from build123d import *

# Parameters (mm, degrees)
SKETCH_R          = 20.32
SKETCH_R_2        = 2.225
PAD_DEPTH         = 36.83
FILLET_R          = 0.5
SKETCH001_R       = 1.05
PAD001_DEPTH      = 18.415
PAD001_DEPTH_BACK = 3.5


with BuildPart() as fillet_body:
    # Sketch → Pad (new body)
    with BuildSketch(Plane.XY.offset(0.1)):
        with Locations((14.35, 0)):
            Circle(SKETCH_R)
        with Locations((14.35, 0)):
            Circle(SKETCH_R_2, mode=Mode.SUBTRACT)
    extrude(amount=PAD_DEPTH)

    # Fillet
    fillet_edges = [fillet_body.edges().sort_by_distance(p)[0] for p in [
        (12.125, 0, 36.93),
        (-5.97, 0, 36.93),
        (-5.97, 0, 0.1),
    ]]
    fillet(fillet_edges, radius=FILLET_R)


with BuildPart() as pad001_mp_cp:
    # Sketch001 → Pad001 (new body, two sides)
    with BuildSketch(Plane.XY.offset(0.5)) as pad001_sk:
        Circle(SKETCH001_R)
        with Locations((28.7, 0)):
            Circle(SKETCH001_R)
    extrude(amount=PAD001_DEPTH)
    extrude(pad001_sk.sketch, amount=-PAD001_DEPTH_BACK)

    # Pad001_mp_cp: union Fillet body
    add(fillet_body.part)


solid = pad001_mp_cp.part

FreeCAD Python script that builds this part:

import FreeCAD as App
import Part
import Sketcher
from FreeCAD import Vector
Q = App.Units.Quantity


def edges_at(feature, points):
    """Names of the edges that pass closest to the given points."""
    edges = feature.Shape.Edges
    near = lambda p: min(range(len(edges)), key=lambda i: edges[i].distToShape(Part.Vertex(*p))[0])
    return sorted({f"Edge{near(p) + 1}" for p in points})

doc = App.newDocument("Part")
body = doc.addObject("PartDesign::Body", "Body")

sketch1 = body.newObject("Sketcher::SketchObject", "Sketch")
sketch1.AttachmentSupport = (doc.getObject("XY_Plane"), [""])
sketch1.MapMode = "FlatFace"
sketch1.AttachmentOffset = App.Placement(Vector(0, 0, 0.1), App.Rotation())
sketch1.addGeometry(Part.Circle(Vector(14.3, 0, 0), Vector(0, 0, 1), 20.3), False)
sketch1.addGeometry(Part.Circle(Vector(14.3, 0, 0), Vector(0, 0, 1), 2.2), False)
sketch1.addConstraint(Sketcher.Constraint("Coincident", 1, 3, 0, 3))
sketch1.addConstraint(Sketcher.Constraint("PointOnObject", 0, 3, -1))
sketch1.addConstraint(Sketcher.Constraint("Diameter", 0, Q("1.6 in")))
sketch1.addConstraint(Sketcher.Constraint("Diameter", 1, 4.45))
sketch1.addConstraint(Sketcher.Constraint("DistanceX", -1, 1, 0, 3, 14.35))
pad1 = body.newObject("PartDesign::Pad", "Pad")
pad1.Profile = sketch1
pad1.Length = Q("1.45 in")
doc.recompute()

fillet = body.newObject("PartDesign::Fillet", "Fillet")
fillet.Base = (pad1, edges_at(pad1, [(12.125, 0, 36.93), (-5.97, 0, 36.93), (-5.97, 0, 0.1)]))
fillet.Radius = 0.5
body2 = doc.addObject("PartDesign::Body", "Body001")
body2.AllowCompound = True

sketch2 = body2.newObject("Sketcher::SketchObject", "Sketch001")
sketch2.AttachmentSupport = (doc.getObject("XY_Plane001"), [""])
sketch2.MapMode = "FlatFace"
sketch2.AttachmentOffset = App.Placement(Vector(0, 0, 0.5), App.Rotation())
sketch2.addGeometry(Part.Circle(Vector(0, 0, 0), Vector(0, 0, 1), 1.1), False)
sketch2.addGeometry(Part.Circle(Vector(28.7, 0, 0), Vector(0, 0, 1), 1.1), False)
sketch2.addConstraint(Sketcher.Constraint("Coincident", 0, 3, -1, 1))
sketch2.addConstraint(Sketcher.Constraint("Equal", 0, 1))
sketch2.addConstraint(Sketcher.Constraint("PointOnObject", 1, 3, -1))
sketch2.addConstraint(Sketcher.Constraint("Diameter", 0, 2.1))
sketch2.addConstraint(Sketcher.Constraint("DistanceX", -1, 1, 1, 3, 28.7))
pad2 = body2.newObject("PartDesign::Pad", "Pad001")
pad2.Profile = sketch2
pad2.Type = "TwoLengths"
pad2.Length = Q("0.725 in")
pad2.Length2 = 3.5
doc.recompute()

boolean = body2.newObject("PartDesign::Boolean", "Boolean")
boolean.Type = "Fuse"
boolean.addObjects([body])

doc.recompute()
